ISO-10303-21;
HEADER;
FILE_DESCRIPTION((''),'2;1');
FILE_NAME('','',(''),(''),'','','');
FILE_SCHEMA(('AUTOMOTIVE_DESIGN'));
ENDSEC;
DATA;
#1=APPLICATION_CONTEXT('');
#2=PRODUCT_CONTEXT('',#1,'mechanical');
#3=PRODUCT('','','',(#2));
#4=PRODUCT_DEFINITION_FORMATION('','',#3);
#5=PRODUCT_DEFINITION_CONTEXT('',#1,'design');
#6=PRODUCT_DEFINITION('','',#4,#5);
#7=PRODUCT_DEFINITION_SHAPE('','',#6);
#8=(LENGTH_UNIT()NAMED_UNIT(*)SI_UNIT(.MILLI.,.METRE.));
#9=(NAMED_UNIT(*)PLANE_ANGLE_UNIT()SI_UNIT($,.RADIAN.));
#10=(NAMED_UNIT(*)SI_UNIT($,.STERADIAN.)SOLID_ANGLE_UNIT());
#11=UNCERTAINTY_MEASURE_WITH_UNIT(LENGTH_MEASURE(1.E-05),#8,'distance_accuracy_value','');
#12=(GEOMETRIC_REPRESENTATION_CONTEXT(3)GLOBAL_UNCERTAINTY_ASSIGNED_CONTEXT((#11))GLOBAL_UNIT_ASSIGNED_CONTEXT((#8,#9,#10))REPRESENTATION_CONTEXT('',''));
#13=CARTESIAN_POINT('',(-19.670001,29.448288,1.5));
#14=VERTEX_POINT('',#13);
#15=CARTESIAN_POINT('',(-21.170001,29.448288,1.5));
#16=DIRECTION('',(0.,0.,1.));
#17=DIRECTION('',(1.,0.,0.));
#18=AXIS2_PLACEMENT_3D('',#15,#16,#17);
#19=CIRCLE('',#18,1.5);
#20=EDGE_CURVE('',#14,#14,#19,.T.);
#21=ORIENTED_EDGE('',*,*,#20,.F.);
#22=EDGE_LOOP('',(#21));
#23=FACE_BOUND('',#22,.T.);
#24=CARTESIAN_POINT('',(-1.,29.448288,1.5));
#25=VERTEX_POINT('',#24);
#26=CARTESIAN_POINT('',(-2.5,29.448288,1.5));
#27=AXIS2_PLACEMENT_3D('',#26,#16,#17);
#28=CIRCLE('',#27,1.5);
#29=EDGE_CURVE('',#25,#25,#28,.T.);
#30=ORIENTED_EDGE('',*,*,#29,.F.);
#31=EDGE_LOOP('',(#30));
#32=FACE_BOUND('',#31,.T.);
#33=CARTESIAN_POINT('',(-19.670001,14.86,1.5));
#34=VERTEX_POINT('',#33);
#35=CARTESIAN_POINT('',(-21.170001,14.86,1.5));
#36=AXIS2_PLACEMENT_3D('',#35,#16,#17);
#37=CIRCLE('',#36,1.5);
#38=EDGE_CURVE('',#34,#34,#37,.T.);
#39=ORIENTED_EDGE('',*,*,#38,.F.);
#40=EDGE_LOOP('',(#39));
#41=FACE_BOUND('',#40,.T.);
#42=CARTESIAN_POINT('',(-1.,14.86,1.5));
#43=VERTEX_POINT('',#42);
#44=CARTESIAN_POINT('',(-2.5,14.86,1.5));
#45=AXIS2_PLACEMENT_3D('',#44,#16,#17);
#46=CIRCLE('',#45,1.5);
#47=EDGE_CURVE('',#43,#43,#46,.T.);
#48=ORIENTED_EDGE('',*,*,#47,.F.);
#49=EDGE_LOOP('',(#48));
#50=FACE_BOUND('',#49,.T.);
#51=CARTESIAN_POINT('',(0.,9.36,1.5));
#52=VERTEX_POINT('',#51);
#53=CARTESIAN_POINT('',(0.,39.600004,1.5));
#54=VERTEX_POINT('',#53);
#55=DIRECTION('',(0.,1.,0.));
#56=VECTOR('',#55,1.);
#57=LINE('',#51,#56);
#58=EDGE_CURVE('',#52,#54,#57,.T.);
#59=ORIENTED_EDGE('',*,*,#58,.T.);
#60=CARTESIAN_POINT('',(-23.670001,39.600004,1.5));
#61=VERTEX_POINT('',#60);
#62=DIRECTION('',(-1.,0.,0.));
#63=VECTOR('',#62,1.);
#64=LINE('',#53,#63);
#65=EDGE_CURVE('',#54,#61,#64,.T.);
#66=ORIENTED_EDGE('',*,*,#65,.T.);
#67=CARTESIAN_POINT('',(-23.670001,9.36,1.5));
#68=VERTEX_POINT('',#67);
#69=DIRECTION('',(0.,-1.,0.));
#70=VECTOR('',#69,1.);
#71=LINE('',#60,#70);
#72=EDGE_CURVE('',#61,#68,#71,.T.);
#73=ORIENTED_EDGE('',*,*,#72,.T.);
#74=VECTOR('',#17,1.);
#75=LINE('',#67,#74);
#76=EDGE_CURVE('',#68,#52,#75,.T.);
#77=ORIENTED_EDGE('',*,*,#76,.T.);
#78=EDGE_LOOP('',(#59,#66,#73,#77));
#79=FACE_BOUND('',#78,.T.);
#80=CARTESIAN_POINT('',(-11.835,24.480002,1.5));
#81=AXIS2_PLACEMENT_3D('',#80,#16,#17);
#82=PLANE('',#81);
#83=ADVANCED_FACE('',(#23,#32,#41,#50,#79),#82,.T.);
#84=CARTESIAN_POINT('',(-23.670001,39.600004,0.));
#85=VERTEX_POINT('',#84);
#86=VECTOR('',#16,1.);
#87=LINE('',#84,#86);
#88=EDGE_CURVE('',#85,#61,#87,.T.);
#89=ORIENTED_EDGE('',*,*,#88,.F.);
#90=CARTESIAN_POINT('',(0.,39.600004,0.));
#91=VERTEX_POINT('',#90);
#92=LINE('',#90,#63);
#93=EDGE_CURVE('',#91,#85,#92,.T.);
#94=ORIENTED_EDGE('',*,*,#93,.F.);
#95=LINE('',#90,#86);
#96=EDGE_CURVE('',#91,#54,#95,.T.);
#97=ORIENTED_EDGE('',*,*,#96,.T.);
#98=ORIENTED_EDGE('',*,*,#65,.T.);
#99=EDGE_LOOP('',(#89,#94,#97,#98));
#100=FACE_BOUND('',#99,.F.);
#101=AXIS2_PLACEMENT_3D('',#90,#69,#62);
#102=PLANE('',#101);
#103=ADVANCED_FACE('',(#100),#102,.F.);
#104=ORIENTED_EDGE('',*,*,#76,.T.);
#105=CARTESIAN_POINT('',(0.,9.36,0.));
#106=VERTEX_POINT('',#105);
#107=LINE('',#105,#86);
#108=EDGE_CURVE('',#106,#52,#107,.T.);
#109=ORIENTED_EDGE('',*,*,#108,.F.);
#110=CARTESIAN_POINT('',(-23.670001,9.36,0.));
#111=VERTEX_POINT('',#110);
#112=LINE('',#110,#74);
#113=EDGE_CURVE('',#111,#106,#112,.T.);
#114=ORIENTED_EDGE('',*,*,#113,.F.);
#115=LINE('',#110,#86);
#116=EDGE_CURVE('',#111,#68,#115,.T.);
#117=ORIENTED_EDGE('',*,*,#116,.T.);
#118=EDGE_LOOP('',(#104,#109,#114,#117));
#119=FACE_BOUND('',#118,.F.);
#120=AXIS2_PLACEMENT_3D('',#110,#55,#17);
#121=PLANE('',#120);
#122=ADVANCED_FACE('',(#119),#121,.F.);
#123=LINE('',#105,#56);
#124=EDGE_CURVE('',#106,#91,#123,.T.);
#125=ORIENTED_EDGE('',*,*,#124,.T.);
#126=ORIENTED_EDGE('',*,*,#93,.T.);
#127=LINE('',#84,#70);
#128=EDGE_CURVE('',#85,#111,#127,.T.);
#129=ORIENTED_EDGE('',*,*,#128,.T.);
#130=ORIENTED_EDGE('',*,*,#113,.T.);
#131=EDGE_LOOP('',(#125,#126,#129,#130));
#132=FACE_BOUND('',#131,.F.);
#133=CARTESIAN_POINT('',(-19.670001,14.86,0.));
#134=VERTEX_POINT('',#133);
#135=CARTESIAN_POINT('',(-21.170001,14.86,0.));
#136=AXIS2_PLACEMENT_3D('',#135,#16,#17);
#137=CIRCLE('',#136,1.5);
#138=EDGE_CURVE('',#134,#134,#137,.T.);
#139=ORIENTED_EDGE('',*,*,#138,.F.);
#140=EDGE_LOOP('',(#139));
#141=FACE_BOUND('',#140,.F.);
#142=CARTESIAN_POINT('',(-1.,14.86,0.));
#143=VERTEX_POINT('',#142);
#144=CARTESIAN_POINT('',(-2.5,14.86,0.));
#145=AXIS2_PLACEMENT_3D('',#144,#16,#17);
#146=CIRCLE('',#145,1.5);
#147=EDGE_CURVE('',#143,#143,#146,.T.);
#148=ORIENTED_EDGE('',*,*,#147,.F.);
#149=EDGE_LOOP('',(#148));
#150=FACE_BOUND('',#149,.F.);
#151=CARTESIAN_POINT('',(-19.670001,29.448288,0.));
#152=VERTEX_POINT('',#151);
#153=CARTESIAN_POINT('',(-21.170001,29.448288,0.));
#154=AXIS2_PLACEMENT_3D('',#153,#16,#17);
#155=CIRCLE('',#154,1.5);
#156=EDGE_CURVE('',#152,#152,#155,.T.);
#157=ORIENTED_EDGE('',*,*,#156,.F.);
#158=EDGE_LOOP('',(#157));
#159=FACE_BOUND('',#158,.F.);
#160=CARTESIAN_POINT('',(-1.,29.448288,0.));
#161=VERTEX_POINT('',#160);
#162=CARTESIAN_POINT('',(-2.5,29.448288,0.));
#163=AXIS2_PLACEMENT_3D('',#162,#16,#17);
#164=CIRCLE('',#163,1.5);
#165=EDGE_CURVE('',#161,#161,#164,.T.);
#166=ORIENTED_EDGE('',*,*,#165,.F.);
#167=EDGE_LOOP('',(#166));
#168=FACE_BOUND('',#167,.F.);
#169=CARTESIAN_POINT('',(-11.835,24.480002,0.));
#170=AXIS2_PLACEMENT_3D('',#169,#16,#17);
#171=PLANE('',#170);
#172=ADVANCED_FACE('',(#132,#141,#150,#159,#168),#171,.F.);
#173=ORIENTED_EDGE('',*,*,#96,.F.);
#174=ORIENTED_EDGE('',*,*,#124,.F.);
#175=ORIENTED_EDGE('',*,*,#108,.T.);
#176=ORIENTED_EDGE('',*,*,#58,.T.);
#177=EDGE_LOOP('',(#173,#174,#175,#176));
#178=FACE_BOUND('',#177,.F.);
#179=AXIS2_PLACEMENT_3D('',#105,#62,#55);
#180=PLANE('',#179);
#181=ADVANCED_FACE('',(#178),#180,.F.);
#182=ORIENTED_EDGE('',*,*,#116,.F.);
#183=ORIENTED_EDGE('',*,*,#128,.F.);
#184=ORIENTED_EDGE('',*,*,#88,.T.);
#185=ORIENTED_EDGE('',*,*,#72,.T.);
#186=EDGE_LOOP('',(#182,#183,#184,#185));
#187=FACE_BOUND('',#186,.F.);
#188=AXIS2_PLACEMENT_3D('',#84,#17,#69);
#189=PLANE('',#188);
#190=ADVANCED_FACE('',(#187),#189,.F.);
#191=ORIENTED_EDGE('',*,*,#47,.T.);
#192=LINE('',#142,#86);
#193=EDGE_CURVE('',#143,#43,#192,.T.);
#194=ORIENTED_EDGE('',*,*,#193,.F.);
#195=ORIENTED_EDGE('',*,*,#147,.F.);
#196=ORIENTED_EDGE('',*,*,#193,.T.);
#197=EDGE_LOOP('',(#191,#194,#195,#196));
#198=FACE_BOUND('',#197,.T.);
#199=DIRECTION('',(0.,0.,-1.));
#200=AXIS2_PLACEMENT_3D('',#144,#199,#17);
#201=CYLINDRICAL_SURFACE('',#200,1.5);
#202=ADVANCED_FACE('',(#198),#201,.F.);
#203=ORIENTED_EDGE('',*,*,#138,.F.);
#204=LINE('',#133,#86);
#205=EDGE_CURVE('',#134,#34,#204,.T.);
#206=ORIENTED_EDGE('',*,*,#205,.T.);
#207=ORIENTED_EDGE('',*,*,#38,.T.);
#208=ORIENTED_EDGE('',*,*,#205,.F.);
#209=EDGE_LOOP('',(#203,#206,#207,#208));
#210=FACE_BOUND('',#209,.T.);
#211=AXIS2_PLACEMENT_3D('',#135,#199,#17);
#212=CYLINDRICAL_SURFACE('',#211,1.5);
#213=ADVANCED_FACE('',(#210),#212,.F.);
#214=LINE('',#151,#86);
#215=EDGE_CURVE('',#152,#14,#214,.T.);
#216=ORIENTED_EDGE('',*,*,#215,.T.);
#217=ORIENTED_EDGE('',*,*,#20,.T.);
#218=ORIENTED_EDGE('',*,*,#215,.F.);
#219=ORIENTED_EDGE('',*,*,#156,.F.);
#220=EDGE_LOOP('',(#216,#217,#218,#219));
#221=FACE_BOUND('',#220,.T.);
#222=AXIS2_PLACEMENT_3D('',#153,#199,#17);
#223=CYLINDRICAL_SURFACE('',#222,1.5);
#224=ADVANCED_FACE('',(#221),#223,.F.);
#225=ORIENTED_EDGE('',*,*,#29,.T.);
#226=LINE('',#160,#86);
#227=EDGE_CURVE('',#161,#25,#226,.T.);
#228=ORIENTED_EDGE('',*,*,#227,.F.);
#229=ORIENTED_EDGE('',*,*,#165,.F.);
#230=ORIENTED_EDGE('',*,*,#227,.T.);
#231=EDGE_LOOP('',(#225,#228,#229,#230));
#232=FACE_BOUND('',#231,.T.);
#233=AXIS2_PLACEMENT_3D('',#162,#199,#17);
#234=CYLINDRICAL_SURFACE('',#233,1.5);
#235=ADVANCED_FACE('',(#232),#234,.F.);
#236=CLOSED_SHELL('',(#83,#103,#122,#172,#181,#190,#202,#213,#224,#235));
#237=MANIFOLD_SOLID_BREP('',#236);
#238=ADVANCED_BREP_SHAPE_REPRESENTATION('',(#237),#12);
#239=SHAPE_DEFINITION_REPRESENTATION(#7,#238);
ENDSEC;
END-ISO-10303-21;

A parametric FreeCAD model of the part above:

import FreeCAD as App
import Part
import Sketcher
from FreeCAD import Vector

doc = App.newDocument("Part")
body = doc.addObject("PartDesign::Body", "Body")

# Sketch on XY plane
sketch1 = doc.addObject("Sketcher::SketchObject", "Sketch")
body.addObject(sketch1)
sketch1.AttachmentSupport = (doc.XY_Plane, [""])
sketch1.MapMode = "FlatFace"
sketch1.addGeometry([
    Part.LineSegment(Vector(0, 39.600004, 0), Vector(-23.670001, 39.600004, 0)),  # 0
    Part.LineSegment(Vector(-23.670001, 39.600004, 0), Vector(-23.670001, 9.36, 0)),  # 1
    Part.LineSegment(Vector(-23.670001, 9.36, 0), Vector(0, 9.36, 0)),  # 2
    Part.LineSegment(Vector(0, 9.36, 0), Vector(0, 39.600004, 0)),  # 3
    Part.Circle(Vector(-21.170001, 14.86, 0), Vector(0, 0, 1), 1.5),  # 4
    Part.Circle(Vector(-2.5, 14.86, 0), Vector(0, 0, 1), 1.5),  # 5
    Part.Circle(Vector(-21.170001, 29.448288, 0), Vector(0, 0, 1), 1.5),  # 6
    Part.Circle(Vector(-2.5, 29.448288, 0), Vector(0, 0, 1), 1.5),  # 7
], False)
sketch1.addConstraint([
    Sketcher.Constraint("Coincident", 0, 2, 1, 1),
    Sketcher.Constraint("Coincident", 1, 2, 2, 1),
    Sketcher.Constraint("Coincident", 2, 2, 3, 1),
    Sketcher.Constraint("Coincident", 3, 2, 0, 1),
    Sketcher.Constraint("Horizontal", 0),
    Sketcher.Constraint("Vertical", 1),
    Sketcher.Constraint("Horizontal", 2),
    Sketcher.Constraint("Vertical", 3),
    Sketcher.Constraint("Equal", 4, 5),
    Sketcher.Constraint("Equal", 5, 6),
    Sketcher.Constraint("Equal", 6, 7),
    Sketcher.Constraint("PointOnObject", 2, 2, -2),
    Sketcher.Constraint("Horizontal", 4, 3, 5, 3),
    Sketcher.Constraint("Horizontal", 6, 3, 7, 3),
    Sketcher.Constraint("Vertical", 4, 3, 6, 3),
    Sketcher.Constraint("Vertical", 5, 3, 7, 3),
    Sketcher.Constraint("Diameter", 4, 3.0),
    Sketcher.Constraint("DistanceX", 0, 2, 0, 1, 23.670001),
    Sketcher.Constraint("DistanceX", 5, 3, -1, 1, 2.5),
    Sketcher.Constraint("DistanceX", 0, 2, 6, 3, 2.5),
    Sketcher.Constraint("DistanceY", 1, 2, 4, 3, 5.5),
    Sketcher.Constraint("DistanceY", -1, 1, 4, 3, 14.86),
    Sketcher.Constraint("DistanceY", 1, 2, 1, 1, 30.240004),
    Sketcher.Constraint("DistanceY", -1, 1, 6, 3, 29.448288),
])
pad1 = doc.addObject("PartDesign::Pad", "Pad")
body.addObject(pad1)
pad1.Profile = sketch1
pad1.Length = 1.5

doc.recompute()
